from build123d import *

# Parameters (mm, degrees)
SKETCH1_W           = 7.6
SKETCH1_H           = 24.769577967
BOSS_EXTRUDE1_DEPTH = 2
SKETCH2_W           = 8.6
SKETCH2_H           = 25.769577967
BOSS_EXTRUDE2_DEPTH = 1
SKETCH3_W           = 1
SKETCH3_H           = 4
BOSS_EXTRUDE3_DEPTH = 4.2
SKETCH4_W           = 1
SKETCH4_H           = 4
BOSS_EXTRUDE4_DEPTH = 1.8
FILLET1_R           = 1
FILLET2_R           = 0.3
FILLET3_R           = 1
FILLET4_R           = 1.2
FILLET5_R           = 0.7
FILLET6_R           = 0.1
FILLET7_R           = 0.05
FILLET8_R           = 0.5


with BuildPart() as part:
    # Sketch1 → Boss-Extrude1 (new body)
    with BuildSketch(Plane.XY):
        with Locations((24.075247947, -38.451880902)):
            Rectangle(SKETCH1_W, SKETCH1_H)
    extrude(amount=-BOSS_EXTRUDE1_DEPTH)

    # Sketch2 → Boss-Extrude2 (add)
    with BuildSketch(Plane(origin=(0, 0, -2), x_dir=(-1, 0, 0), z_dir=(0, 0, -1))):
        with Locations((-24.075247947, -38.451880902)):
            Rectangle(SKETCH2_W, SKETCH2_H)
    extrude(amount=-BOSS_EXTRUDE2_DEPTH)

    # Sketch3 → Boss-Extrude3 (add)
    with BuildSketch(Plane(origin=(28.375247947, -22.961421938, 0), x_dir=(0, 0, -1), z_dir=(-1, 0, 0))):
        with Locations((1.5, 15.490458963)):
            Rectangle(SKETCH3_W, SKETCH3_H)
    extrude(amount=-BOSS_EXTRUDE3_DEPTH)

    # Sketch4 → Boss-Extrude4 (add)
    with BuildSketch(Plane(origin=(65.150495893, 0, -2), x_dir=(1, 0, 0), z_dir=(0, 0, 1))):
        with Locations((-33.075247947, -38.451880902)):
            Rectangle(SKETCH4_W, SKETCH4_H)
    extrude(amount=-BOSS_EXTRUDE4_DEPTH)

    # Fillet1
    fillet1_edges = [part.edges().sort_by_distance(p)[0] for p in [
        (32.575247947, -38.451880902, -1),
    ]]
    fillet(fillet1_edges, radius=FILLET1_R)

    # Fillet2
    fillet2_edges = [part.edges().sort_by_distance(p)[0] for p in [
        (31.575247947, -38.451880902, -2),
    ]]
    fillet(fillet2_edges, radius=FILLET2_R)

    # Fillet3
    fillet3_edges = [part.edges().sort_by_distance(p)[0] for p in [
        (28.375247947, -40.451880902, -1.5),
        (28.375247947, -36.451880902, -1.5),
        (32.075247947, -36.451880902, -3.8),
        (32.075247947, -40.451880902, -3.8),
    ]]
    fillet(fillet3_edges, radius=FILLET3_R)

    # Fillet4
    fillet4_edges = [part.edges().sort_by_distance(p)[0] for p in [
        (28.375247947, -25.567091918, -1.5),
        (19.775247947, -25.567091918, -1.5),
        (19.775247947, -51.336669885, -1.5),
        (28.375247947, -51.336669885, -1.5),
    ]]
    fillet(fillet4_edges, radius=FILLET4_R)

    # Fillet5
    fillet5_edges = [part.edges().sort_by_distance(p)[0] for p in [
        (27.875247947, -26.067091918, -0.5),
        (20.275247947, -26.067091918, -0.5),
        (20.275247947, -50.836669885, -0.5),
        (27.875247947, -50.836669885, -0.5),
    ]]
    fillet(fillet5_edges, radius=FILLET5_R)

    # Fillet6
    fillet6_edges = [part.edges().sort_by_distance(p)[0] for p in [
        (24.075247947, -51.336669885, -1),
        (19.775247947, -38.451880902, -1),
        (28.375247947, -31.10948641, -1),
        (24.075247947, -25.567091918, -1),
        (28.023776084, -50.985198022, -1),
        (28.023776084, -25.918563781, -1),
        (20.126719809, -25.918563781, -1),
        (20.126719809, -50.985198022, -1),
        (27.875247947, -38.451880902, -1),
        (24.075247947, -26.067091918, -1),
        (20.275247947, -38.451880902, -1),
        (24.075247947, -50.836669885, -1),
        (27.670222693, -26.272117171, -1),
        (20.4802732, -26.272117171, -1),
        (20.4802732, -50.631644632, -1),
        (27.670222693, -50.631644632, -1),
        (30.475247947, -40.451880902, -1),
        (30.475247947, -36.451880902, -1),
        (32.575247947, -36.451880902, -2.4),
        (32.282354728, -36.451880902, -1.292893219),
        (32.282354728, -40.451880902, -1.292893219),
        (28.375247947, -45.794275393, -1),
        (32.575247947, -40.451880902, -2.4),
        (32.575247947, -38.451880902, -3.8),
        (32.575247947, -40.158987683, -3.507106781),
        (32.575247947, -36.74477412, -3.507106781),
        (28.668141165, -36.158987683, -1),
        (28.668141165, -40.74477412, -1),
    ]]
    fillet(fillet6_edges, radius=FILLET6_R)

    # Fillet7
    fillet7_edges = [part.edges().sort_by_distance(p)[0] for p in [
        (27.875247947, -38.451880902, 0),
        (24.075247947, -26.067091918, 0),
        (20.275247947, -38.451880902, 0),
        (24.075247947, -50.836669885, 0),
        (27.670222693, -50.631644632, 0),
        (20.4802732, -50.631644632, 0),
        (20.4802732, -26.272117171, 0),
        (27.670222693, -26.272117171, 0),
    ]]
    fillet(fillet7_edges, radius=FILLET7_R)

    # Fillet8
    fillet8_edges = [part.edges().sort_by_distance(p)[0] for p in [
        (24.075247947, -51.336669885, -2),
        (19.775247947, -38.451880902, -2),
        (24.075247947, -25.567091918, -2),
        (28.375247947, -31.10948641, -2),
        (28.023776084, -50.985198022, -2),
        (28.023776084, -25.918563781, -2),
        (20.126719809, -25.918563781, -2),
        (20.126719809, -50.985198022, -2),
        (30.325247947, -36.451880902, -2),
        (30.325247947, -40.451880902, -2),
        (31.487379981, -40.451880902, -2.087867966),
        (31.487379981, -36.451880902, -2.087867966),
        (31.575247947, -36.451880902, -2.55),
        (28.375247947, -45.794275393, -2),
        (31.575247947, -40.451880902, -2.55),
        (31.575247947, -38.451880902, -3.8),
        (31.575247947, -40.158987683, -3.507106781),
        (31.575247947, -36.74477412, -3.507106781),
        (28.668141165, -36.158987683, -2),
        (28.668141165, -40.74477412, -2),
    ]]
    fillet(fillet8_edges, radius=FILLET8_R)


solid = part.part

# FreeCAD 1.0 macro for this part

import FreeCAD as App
import Part
import Sketcher


def edges_at(feature, points):
    """Names of the edges that pass closest to the given points."""
    edges = feature.Shape.Edges
    near = lambda p: min(range(len(edges)), key=lambda i: edges[i].distToShape(Part.Vertex(*p))[0])
    return sorted({f"Edge{near(p) + 1}" for p in points})

doc = App.newDocument("Part")
body = doc.addObject("PartDesign::Body", "Body")

# Sketch on XY plane
sketch1 = doc.addObject("Sketcher::SketchObject", "Sketch")
body.addObject(sketch1)
sketch1.AttachmentSupport = (doc.XY_Plane, [""])
sketch1.MapMode = "FlatFace"
sketch1.addGeometry([
    Part.LineSegment(App.Vector(20, -26, 0), App.Vector(20, -51, 0)),
    Part.LineSegment(App.Vector(20, -51, 0), App.Vector(28, -51, 0)),
    Part.LineSegment(App.Vector(28, -51, 0), App.Vector(28, -26, 0)),
    Part.LineSegment(App.Vector(28, -26, 0), App.Vector(20, -26, 0)),
], False)
sketch1.addConstraint([
    Sketcher.Constraint("Coincident", 0, 2, 1, 1),
    Sketcher.Constraint("Coincident", 1, 2, 2, 1),
    Sketcher.Constraint("Coincident", 2, 2, 3, 1),
    Sketcher.Constraint("Coincident", 3, 2, 0, 1),
    Sketcher.Constraint("Vertical", 0),
    Sketcher.Constraint("Horizontal", 1),
    Sketcher.Constraint("Vertical", 2),
    Sketcher.Constraint("Horizontal", 3),
    Sketcher.Constraint("DistanceX", 1, 1, 1, 2, 7.6),
    Sketcher.Constraint("DistanceY", 0, 2, 0, 1, 24.769578),
    Sketcher.Constraint("DistanceY", 0, 2, -1, 1, 50.83667),
    Sketcher.Constraint("DistanceX", -1, 1, 0, 2, 20.275248),
])
pad1 = doc.addObject("PartDesign::Pad", "Pad")
body.addObject(pad1)
pad1.Profile = sketch1
pad1.Length = 2
pad1.Reversed = True

# Sketch on XY plane
sketch2 = doc.addObject("Sketcher::SketchObject", "Sketch001")
body.addObject(sketch2)
sketch2.AttachmentSupport = (doc.XY_Plane, [""])
sketch2.MapMode = "FlatFace"
sketch2.AttachmentOffset = App.Placement(App.Vector(0, 0, -2), App.Rotation())
sketch2.addGeometry([
    Part.LineSegment(App.Vector(28, -26, 0), App.Vector(28, -51, 0)),
    Part.LineSegment(App.Vector(28, -51, 0), App.Vector(20, -51, 0)),
    Part.LineSegment(App.Vector(20, -51, 0), App.Vector(20, -26, 0)),
    Part.LineSegment(App.Vector(20, -26, 0), App.Vector(28, -26, 0)),
], False)
sketch2.addConstraint([
    Sketcher.Constraint("Coincident", 0, 2, 1, 1),
    Sketcher.Constraint("Coincident", 1, 2, 2, 1),
    Sketcher.Constraint("Coincident", 2, 2, 3, 1),
    Sketcher.Constraint("Coincident", 3, 2, 0, 1),
    Sketcher.Constraint("Vertical", 0),
    Sketcher.Constraint("Horizontal", 1),
    Sketcher.Constraint("Vertical", 2),
    Sketcher.Constraint("Horizontal", 3),
    Sketcher.Constraint("DistanceX", 1, 2, 1, 1, 8.6),
    Sketcher.Constraint("DistanceY", 0, 2, 0, 1, 25.769578),
    Sketcher.Constraint("DistanceY", 0, 2, -1, 1, 51.33667),
    Sketcher.Constraint("DistanceX", -1, 1, 0, 2, 28.375248),
])
pad2 = doc.addObject("PartDesign::Pad", "Pad001")
body.addObject(pad2)
pad2.Profile = sketch2
pad2.Length = 1

# Sketch on YZ plane
sketch3 = doc.addObject("Sketcher::SketchObject", "Sketch002")
body.addObject(sketch3)
sketch3.AttachmentSupport = (doc.YZ_Plane, [""])
sketch3.MapMode = "FlatFace"
sketch3.AttachmentOffset = App.Placement(App.Vector(0, 0, 28.375248), App.Rotation())
sketch3.addGeometry([
    Part.LineSegment(App.Vector(-40.5, -1, 0), App.Vector(-36.5, -1, 0)),
    Part.LineSegment(App.Vector(-36.5, -1, 0), App.Vector(-36.5, -2, 0)),
    Part.LineSegment(App.Vector(-36.5, -2, 0), App.Vector(-40.5, -2, 0)),
    Part.LineSegment(App.Vector(-40.5, -2, 0), App.Vector(-40.5, -1, 0)),
], False)
sketch3.addConstraint([
    Sketcher.Constraint("Coincident", 0, 2, 1, 1),
    Sketcher.Constraint("Coincident", 1, 2, 2, 1),
    Sketcher.Constraint("Coincident", 2, 2, 3, 1),
    Sketcher.Constraint("Coincident", 3, 2, 0, 1),
    Sketcher.Constraint("Horizontal", 0),
    Sketcher.Constraint("Vertical", 1),
    Sketcher.Constraint("Horizontal", 2),
    Sketcher.Constraint("Vertical", 3),
    Sketcher.Constraint("DistanceX", 0, 1, 0, 2, 4.0),
    Sketcher.Constraint("DistanceY", 1, 2, 1, 1, 1.0),
    Sketcher.Constraint("DistanceY", 0, 2, -1, 1, 1.0),
    Sketcher.Constraint("DistanceX", 0, 2, -1, 1, 36.451881),
])
pad3 = doc.addObject("PartDesign::Pad", "Pad002")
body.addObject(pad3)
pad3.Profile = sketch3
pad3.Length = 4.2

# Sketch on XY plane
sketch4 = doc.addObject("Sketcher::SketchObject", "Sketch003")
body.addObject(sketch4)
sketch4.AttachmentSupport = (doc.XY_Plane, [""])
sketch4.MapMode = "FlatFace"
sketch4.AttachmentOffset = App.Placement(App.Vector(0, 0, -2), App.Rotation())
sketch4.addGeometry([
    Part.LineSegment(App.Vector(31.6, -36.5, 0), App.Vector(31.6, -40.5, 0)),
    Part.LineSegment(App.Vector(31.6, -40.5, 0), App.Vector(32.6, -40.5, 0)),
    Part.LineSegment(App.Vector(32.6, -40.5, 0), App.Vector(32.6, -36.5, 0)),
    Part.LineSegment(App.Vector(32.6, -36.5, 0), App.Vector(31.6, -36.5, 0)),
], False)
sketch4.addConstraint([
    Sketcher.Constraint("Coincident", 0, 2, 1, 1),
    Sketcher.Constraint("Coincident", 1, 2, 2, 1),
    Sketcher.Constraint("Coincident", 2, 2, 3, 1),
    Sketcher.Constraint("Coincident", 3, 2, 0, 1),
    Sketcher.Constraint("Vertical", 0),
    Sketcher.Constraint("Horizontal", 1),
    Sketcher.Constraint("Vertical", 2),
    Sketcher.Constraint("Horizontal", 3),
    Sketcher.Constraint("DistanceX", 1, 1, 1, 2, 1.0),
    Sketcher.Constraint("DistanceY", 0, 2, 0, 1, 4.0),
    Sketcher.Constraint("DistanceY", 0, 2, -1, 1, 40.451881),
    Sketcher.Constraint("DistanceX", -1, 1, 0, 2, 31.575248),
])
pad4 = doc.addObject("PartDesign::Pad", "Pad003")
body.addObject(pad4)
pad4.Profile = sketch4
pad4.Length = 1.8
pad4.Reversed = True
doc.recompute()

fillet = doc.addObject("PartDesign::Fillet", "Fillet")
body.addObject(fillet)
fillet.Base = (pad4, edges_at(pad4, [(32.575, -38.452, -1)]))
fillet.Radius = 1
doc.recompute()

fillet2 = doc.addObject("PartDesign::Fillet", "Fillet001")
body.addObject(fillet2)
fillet2.Base = (fillet, edges_at(fillet, [(31.575, -38.452, -2)]))
fillet2.Radius = 0.3
doc.recompute()

fillet3 = doc.addObject("PartDesign::Fillet", "Fillet002")
body.addObject(fillet3)
fillet3.Base = (fillet2, edges_at(fillet2, [
    (28.375, -40.452, -1.5),
    (28.375, -36.452, -1.5),
    (32.075, -36.452, -3.8),
    (32.075, -40.452, -3.8),
]))
fillet3.Radius = 1
doc.recompute()

fillet4 = doc.addObject("PartDesign::Fillet", "Fillet003")
body.addObject(fillet4)
fillet4.Base = (fillet3, edges_at(fillet3, [
    (28.375, -25.567, -1.5),
    (19.775, -25.567, -1.5),
    (19.775, -51.337, -1.5),
    (28.375, -51.337, -1.5),
]))
fillet4.Radius = 1.2
doc.recompute()

fillet5 = doc.addObject("PartDesign::Fillet", "Fillet004")
body.addObject(fillet5)
fillet5.Base = (fillet4, edges_at(fillet4, [
    (27.875, -26.067, -0.5),
    (20.275, -26.067, -0.5),
    (20.275, -50.837, -0.5),
    (27.875, -50.837, -0.5),
]))
fillet5.Radius = 0.7
doc.recompute()

fillet6 = doc.addObject("PartDesign::Fillet", "Fillet005")
body.addObject(fillet6)
fillet6.Base = (fillet5, edges_at(fillet5, [
    (24.075, -51.337, -1),
    (19.775, -38.452, -1),
    (28.375, -31.109, -1),
    (24.075, -25.567, -1),
    (28.024, -50.985, -1),
    (28.024, -25.919, -1),
    (20.127, -25.919, -1),
    (20.127, -50.985, -1),
    (27.875, -38.452, -1),
    (24.075, -26.067, -1),
    (20.275, -38.452, -1),
    (24.075, -50.837, -1),
    (27.67, -26.272, -1),
    (20.48, -26.272, -1),
    (20.48, -50.632, -1),
    (27.67, -50.632, -1),
    (30.475, -40.452, -1),
    (30.475, -36.452, -1),
    (32.575, -36.452, -2.4),
    (32.282, -36.452, -1.293),
    (32.282, -40.452, -1.293),
    (28.375, -45.794, -1),
    (32.575, -40.452, -2.4),
    (32.575, -38.452, -3.8),
    (32.575, -40.159, -3.507),
    (32.575, -36.745, -3.507),
    (28.668, -36.159, -1),
    (28.668, -40.745, -1),
]))
fillet6.Radius = 0.1
doc.recompute()

fillet7 = doc.addObject("PartDesign::Fillet", "Fillet006")
body.addObject(fillet7)
fillet7.Base = (fillet6, edges_at(fillet6, [
    (27.875, -38.452, 0),
    (24.075, -26.067, 0),
    (20.275, -38.452, 0),
    (24.075, -50.837, 0),
    (27.67, -50.632, 0),
    (20.48, -50.632, 0),
    (20.48, -26.272, 0),
    (27.67, -26.272, 0),
]))
fillet7.Radius = 0.05
doc.recompute()

fillet8 = doc.addObject("PartDesign::Fillet", "Fillet007")
body.addObject(fillet8)
fillet8.Base = (fillet7, edges_at(fillet7, [
    (24.075, -51.337, -2),
    (19.775, -38.452, -2),
    (24.075, -25.567, -2),
    (28.375, -31.109, -2),
    (28.024, -50.985, -2),
    (28.024, -25.919, -2),
    (20.127, -25.919, -2),
    (20.127, -50.985, -2),
    (30.325, -36.452, -2),
    (30.325, -40.452, -2),
    (31.487, -40.452, -2.088),
    (31.487, -36.452, -2.088),
    (31.575, -36.452, -2.55),
    (28.375, -45.794, -2),
    (31.575, -40.452, -2.55),
    (31.575, -38.452, -3.8),
    (31.575, -40.159, -3.507),
    (31.575, -36.745, -3.507),
    (28.668, -36.159, -2),
    (28.668, -40.745, -2),
]))
fillet8.Radius = 0.5

doc.recompute()
